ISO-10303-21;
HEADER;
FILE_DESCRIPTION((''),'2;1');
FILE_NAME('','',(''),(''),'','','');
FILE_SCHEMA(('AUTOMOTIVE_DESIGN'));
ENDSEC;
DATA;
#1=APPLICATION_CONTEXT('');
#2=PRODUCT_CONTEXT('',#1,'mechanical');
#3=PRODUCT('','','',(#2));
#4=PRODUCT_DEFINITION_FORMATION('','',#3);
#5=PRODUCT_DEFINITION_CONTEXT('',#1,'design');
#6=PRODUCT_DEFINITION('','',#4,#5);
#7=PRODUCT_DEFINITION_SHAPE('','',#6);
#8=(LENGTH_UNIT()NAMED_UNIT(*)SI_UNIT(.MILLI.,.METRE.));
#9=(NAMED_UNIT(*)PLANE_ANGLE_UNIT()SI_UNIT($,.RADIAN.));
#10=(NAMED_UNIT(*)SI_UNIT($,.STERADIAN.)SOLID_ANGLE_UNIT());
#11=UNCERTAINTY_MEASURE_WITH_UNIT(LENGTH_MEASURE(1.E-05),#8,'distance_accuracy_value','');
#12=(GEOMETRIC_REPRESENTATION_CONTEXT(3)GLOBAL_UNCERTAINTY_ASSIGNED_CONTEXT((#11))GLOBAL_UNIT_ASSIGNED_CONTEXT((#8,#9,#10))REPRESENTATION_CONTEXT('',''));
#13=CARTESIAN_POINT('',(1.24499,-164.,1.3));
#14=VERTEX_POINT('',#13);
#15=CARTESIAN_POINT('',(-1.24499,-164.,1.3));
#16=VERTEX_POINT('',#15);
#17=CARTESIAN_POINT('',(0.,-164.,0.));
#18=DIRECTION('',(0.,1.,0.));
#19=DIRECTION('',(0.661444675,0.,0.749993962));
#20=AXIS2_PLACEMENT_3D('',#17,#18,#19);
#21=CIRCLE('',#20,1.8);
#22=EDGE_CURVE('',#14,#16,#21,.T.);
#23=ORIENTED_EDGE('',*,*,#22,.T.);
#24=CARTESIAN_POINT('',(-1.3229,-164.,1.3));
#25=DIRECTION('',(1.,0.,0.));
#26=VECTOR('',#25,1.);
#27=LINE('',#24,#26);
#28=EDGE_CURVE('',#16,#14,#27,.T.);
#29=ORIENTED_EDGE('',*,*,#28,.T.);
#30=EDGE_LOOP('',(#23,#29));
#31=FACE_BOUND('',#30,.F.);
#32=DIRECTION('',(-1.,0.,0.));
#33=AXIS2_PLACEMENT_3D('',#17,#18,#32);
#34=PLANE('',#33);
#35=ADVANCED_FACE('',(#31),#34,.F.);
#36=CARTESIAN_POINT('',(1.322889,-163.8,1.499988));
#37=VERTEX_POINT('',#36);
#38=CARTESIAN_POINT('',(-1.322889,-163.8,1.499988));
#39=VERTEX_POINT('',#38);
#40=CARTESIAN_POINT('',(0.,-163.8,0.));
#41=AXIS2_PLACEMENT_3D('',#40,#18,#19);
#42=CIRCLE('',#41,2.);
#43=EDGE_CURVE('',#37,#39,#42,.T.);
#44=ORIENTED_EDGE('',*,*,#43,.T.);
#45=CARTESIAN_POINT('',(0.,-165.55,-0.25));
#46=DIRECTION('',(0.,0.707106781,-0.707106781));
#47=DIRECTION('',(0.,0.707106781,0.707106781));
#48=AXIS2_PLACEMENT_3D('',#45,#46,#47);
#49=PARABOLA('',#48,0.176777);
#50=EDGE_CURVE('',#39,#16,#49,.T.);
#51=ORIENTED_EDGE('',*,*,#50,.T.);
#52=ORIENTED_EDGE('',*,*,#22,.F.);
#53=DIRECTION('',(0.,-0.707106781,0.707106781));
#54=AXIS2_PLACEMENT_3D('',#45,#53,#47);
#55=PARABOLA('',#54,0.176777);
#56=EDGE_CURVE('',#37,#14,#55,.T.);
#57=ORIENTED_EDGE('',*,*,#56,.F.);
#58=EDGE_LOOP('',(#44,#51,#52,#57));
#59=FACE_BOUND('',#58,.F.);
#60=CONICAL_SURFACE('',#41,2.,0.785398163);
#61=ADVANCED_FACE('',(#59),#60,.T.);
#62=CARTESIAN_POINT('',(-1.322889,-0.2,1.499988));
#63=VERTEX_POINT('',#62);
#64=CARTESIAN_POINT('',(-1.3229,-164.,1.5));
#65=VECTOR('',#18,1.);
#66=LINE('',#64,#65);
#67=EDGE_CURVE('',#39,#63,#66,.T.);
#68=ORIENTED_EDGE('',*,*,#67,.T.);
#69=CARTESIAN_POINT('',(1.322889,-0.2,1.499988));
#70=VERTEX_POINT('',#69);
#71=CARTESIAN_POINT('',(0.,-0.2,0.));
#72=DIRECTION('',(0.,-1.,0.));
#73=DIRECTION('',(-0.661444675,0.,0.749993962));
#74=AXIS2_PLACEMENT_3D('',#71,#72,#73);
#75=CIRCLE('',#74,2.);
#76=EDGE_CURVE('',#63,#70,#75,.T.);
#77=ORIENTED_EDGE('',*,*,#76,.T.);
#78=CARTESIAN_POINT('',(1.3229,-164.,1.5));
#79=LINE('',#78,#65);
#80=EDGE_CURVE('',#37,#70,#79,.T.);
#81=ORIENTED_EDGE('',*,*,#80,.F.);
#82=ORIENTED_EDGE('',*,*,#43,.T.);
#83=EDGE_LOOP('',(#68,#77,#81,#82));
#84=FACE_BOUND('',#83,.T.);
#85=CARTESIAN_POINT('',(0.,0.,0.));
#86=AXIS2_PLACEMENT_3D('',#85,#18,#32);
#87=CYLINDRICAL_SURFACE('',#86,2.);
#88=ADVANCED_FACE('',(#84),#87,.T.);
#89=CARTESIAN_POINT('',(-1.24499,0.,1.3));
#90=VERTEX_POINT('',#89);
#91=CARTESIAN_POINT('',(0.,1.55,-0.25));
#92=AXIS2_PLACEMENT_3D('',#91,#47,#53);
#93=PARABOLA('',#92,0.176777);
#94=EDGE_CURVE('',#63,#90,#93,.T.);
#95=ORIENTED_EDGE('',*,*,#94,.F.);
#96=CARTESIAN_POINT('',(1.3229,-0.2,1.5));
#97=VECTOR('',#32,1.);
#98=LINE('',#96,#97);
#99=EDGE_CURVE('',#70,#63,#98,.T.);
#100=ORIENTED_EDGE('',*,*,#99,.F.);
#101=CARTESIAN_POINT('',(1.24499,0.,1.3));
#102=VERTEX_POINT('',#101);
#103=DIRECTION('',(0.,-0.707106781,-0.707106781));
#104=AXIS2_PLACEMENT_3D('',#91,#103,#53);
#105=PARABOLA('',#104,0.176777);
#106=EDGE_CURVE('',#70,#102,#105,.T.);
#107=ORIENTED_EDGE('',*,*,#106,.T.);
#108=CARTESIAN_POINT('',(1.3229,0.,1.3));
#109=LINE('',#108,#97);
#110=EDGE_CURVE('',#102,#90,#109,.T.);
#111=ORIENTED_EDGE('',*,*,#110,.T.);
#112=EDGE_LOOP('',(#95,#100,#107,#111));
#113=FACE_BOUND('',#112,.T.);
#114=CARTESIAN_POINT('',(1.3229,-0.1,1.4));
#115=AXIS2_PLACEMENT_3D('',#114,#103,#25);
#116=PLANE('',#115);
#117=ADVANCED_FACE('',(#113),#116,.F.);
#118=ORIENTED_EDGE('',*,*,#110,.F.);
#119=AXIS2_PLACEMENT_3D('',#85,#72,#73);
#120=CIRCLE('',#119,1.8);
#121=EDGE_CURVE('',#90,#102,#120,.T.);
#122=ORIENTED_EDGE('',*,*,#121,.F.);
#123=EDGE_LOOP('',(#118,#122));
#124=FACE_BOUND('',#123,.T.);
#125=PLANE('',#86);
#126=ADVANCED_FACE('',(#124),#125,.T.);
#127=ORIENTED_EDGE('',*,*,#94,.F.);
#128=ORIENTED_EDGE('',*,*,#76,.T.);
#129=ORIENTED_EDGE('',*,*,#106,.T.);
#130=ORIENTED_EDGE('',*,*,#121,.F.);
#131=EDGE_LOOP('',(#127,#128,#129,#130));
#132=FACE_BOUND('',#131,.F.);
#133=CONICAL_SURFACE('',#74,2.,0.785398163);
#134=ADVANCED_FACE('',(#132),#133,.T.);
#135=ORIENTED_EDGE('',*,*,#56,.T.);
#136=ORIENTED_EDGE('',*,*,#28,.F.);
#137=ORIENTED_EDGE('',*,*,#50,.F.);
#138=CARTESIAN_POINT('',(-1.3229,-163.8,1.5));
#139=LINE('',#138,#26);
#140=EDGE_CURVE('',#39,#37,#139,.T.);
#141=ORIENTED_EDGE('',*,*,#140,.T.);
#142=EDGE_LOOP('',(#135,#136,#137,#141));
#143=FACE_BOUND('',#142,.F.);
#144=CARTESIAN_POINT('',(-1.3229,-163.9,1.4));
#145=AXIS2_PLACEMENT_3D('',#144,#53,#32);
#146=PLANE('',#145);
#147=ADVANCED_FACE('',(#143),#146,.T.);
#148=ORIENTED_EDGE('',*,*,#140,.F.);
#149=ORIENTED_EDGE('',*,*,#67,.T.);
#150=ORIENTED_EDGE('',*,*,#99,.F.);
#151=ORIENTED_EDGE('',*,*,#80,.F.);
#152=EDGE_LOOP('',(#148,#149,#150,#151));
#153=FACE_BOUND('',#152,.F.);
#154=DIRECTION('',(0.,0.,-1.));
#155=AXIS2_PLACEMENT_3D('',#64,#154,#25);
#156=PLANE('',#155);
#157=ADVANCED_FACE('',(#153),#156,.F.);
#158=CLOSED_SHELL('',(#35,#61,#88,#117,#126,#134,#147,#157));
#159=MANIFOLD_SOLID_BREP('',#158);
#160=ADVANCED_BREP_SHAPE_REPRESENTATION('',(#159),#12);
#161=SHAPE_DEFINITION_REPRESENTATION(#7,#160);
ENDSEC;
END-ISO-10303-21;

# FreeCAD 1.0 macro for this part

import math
import FreeCAD as App
import Part
import Sketcher

V = App.Vector


def edges_at(feature, points):
    """Names of the edges that pass closest to the given points."""
    edges = feature.Shape.Edges
    near = lambda p: min(range(len(edges)), key=lambda i: edges[i].distToShape(Part.Vertex(*p))[0])
    return sorted({f"Edge{near(p) + 1}" for p in points})

doc = App.newDocument("Part")
body = doc.addObject("PartDesign::Body", "Body")

# Sketch on XZ plane
sketch1 = body.newObject("Sketcher::SketchObject", "Sketch")
sketch1.AttachmentSupport = (doc.getObject("XZ_Plane"), [""])
sketch1.MapMode = "FlatFace"
sketch1.addGeometry(Part.Circle(V(0, 0, 0), V(0, 0, 1), 2), False)
sketch1.addConstraint(Sketcher.Constraint("Coincident", 0, 3, -1, 1))
sketch1.addConstraint(Sketcher.Constraint("Diameter", 0, 4.0))
pad1 = body.newObject("PartDesign::Pad", "Pad")
pad1.Profile = sketch1
pad1.Length = 164

# Sketch on XZ plane
sketch2 = body.newObject("Sketcher::SketchObject", "Sketch001")
sketch2.AttachmentSupport = (doc.getObject("XZ_Plane"), [""])
sketch2.MapMode = "FlatFace"
sketch2.AttachmentOffset = App.Placement(V(0, 0, 164), App.Rotation())
sketch2.addGeometry(Part.LineSegment(V(-1.3229, 1.5, 0), V(1.3229, 1.5, 0)), False)
sketch2.addGeometry(Part.ArcOfCircle(Part.Circle(V(0, 0, 0), V(0, 0, 1), 2), math.radians(48.589855), math.radians(131.410145)), False)
sketch2.addConstraint(Sketcher.Constraint("Coincident", 0, 1, 1, 2))
sketch2.addConstraint(Sketcher.Constraint("Coincident", 1, 1, 0, 2))
sketch2.addConstraint(Sketcher.Constraint("Horizontal", 0))
sketch2.addConstraint(Sketcher.Constraint("Coincident", 1, 3, -1, 1))
sketch2.addConstraint(Sketcher.Constraint("Radius", 1, 2.0))
sketch2.addConstraint(Sketcher.Constraint("DistanceY", -1, 1, 0, 1, 1.5))
pocket1 = body.newObject("PartDesign::Pocket", "Pocket")
pocket1.Profile = sketch2
pocket1.Type = "ThroughAll"
doc.recompute()

chamfer = body.newObject("PartDesign::Chamfer", "Chamfer")
chamfer.Base = (pocket1, edges_at(pocket1, [
    (0, -164, -2),
    (0, -164, 1.5),
    (0, 0, -2),
    (0, 0, 1.5),
]))
chamfer.Size = 0.2

doc.recompute()
